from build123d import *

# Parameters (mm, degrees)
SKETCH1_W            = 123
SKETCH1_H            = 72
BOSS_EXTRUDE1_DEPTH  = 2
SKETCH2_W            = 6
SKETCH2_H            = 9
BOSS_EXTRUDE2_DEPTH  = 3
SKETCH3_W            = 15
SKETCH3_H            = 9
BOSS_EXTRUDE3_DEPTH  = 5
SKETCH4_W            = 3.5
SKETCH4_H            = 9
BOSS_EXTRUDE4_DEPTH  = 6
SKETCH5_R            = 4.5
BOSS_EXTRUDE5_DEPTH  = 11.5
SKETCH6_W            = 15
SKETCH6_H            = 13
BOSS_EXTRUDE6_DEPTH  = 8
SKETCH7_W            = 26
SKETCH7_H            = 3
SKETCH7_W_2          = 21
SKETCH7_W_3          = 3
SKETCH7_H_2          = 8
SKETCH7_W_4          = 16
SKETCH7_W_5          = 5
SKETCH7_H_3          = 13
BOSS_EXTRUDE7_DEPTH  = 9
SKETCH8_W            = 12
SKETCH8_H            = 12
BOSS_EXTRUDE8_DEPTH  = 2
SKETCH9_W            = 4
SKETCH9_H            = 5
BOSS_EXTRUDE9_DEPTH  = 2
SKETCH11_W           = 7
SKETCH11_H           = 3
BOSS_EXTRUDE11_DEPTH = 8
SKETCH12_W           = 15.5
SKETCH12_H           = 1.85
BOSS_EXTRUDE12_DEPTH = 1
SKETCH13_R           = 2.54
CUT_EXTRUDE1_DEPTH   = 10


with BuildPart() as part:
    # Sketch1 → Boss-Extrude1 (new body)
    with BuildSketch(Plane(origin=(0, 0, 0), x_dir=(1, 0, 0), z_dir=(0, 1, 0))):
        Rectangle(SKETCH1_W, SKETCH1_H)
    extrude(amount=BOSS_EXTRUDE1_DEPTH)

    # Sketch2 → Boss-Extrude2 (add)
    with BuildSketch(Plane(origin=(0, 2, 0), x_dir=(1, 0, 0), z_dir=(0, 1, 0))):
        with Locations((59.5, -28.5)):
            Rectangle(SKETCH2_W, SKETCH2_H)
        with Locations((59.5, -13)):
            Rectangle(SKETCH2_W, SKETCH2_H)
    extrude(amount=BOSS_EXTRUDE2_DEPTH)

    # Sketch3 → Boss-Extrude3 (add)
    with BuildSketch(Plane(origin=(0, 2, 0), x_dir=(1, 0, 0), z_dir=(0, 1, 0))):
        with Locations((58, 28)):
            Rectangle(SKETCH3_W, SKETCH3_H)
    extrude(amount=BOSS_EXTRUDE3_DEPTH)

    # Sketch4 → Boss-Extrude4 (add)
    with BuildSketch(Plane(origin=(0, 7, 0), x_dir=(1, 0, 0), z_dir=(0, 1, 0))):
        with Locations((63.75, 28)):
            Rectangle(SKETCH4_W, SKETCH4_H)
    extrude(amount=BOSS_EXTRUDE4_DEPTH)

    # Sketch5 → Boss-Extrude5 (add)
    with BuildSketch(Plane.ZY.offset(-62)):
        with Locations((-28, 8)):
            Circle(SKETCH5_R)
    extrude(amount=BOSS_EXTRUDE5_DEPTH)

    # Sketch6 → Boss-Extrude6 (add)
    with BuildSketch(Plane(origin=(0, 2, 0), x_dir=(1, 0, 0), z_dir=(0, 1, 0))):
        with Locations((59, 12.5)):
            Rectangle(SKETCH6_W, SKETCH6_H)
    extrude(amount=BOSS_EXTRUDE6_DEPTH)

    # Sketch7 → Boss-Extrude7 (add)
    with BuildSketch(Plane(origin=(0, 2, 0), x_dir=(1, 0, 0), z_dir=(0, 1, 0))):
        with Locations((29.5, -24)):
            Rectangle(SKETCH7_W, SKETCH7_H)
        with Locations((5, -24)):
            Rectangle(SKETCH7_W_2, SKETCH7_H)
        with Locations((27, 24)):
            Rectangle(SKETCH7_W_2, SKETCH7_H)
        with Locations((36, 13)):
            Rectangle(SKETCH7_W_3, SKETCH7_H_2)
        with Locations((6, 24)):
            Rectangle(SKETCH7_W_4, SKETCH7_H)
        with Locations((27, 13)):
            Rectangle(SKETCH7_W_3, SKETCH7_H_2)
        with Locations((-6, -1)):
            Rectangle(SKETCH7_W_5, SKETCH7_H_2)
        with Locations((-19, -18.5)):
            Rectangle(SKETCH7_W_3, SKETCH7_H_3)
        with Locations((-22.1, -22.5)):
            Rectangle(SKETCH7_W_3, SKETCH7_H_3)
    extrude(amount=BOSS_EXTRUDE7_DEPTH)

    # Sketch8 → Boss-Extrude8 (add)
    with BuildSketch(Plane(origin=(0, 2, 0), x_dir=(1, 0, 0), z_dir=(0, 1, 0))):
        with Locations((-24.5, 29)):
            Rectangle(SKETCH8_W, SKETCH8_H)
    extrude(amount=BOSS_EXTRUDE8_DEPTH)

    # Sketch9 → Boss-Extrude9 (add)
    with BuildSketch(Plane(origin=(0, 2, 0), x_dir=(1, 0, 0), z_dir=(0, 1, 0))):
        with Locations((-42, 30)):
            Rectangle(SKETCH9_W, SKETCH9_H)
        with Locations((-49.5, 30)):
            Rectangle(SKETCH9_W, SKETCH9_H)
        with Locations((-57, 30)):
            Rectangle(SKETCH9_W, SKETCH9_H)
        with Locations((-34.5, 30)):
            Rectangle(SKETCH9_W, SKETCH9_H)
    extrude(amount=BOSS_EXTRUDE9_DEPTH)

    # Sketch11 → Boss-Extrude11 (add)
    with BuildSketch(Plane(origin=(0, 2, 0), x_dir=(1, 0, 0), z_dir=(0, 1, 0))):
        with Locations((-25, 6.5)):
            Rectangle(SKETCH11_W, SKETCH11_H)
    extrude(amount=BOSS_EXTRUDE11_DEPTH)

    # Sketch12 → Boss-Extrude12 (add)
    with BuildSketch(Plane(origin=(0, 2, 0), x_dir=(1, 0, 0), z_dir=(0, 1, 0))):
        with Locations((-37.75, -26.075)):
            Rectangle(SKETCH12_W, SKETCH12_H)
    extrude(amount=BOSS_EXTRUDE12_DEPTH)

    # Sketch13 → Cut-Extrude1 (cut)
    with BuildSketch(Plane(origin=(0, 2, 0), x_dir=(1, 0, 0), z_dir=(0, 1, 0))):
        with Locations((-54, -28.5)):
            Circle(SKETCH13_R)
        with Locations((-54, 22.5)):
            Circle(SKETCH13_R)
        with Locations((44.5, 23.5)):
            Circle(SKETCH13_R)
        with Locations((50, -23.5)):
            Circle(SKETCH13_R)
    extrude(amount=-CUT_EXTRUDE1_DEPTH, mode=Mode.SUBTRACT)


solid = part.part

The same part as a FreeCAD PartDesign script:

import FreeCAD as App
import Part
import Sketcher

V = App.Vector


def add_polygon(sketch, points):
    """Adds a closed chain of lines whose ends are joined by coincident constraints."""
    first, n = sketch.GeometryCount, len(points)
    for a, b in zip(points, points[1:] + points[:1]):
        sketch.addGeometry(Part.LineSegment(App.Vector(*a, 0), App.Vector(*b, 0)), False)
    for i in range(n):
        sketch.addConstraint(Sketcher.Constraint("Coincident", first + i, 2, first + (i + 1) % n, 1))

doc = App.newDocument("Part")
body = doc.addObject("PartDesign::Body", "Body")

# Sketch on XZ plane
sketch1 = body.newObject("Sketcher::SketchObject", "Sketch")
sketch1.AttachmentSupport = (doc.getObject("XZ_Plane"), [""])
sketch1.MapMode = "FlatFace"
add_polygon(sketch1, [(-62, -36), (-62, 36), (62, 36), (62, -36)])  # lines 0-3
sketch1.addConstraint([
    Sketcher.Constraint("Vertical", 0),
    Sketcher.Constraint("Horizontal", 1),
    Sketcher.Constraint("Vertical", 2),
    Sketcher.Constraint("Horizontal", 3),
    Sketcher.Constraint("Symmetric", 0, 2, 2, 2, -1, 1),
    Sketcher.Constraint("DistanceX", 1, 1, 1, 2, 123.0),
    Sketcher.Constraint("DistanceY", 0, 1, 0, 2, 72.0),
])
pad1 = body.newObject("PartDesign::Pad", "Pad")
pad1.Profile = sketch1
pad1.Length = 2
pad1.Reversed = True

# Sketch on XZ plane
sketch2 = body.newObject("Sketcher::SketchObject", "Sketch001")
sketch2.AttachmentSupport = (doc.getObject("XZ_Plane"), [""])
sketch2.MapMode = "FlatFace"
sketch2.AttachmentOffset = App.Placement(V(0, 0, -2), App.Rotation())
add_polygon(sketch2, [(56, 24), (56, 33), (62, 33), (62, 24)])  # lines 0-3
add_polygon(sketch2, [(56, 8), (56, 18), (62, 18), (62, 8)])  # lines 4-7
sketch2.addConstraint([
    Sketcher.Constraint("Vertical", 0),
    Sketcher.Constraint("Horizontal", 1),
    Sketcher.Constraint("Vertical", 2),
    Sketcher.Constraint("Horizontal", 3),
    Sketcher.Constraint("Vertical", 4),
    Sketcher.Constraint("Horizontal", 5),
    Sketcher.Constraint("Vertical", 6),
    Sketcher.Constraint("Horizontal", 7),
    Sketcher.Constraint("Vertical", 3, 2, 4, 2),
    Sketcher.Constraint("Vertical", 2, 2, 5, 2),
    Sketcher.Constraint("Equal", 2, 4),
    Sketcher.Constraint("DistanceX", 1, 1, 1, 2, 6.0),
    Sketcher.Constraint("DistanceY", 0, 1, 0, 2, 9.0),
    Sketcher.Constraint("DistanceY", -1, 1, 0, 2, 33.0),
    Sketcher.Constraint("DistanceX", -1, 1, 0, 2, 56.5),
    Sketcher.Constraint("DistanceY", -1, 1, 4, 2, 17.5),
])
pad2 = body.newObject("PartDesign::Pad", "Pad001")
pad2.Profile = sketch2
pad2.Length = 3
pad2.Reversed = True

# Sketch on XZ plane
sketch3 = body.newObject("Sketcher::SketchObject", "Sketch002")
sketch3.AttachmentSupport = (doc.getObject("XZ_Plane"), [""])
sketch3.MapMode = "FlatFace"
sketch3.AttachmentOffset = App.Placement(V(0, 0, -2), App.Rotation())
add_polygon(sketch3, [(50, -32), (50, -24), (66, -24), (66, -32)])  # lines 0-3
sketch3.addConstraint([
    Sketcher.Constraint("Vertical", 0),
    Sketcher.Constraint("Horizontal", 1),
    Sketcher.Constraint("Vertical", 2),
    Sketcher.Constraint("Horizontal", 3),
    Sketcher.Constraint("DistanceX", 1, 1, 1, 2, 15.0),
    Sketcher.Constraint("DistanceY", 0, 1, 0, 2, 9.0),
    Sketcher.Constraint("DistanceX", -1, 1, 0, 2, 50.5),
    Sketcher.Constraint("DistanceY", 0, 2, -1, 1, 23.5),
])
pad3 = body.newObject("PartDesign::Pad", "Pad002")
pad3.Profile = sketch3
pad3.Length = 5
pad3.Reversed = True

# Sketch on XZ plane
sketch4 = body.newObject("Sketcher::SketchObject", "Sketch003")
sketch4.AttachmentSupport = (doc.getObject("XZ_Plane"), [""])
sketch4.MapMode = "FlatFace"
sketch4.AttachmentOffset = App.Placement(V(0, 0, -7), App.Rotation())
add_polygon(sketch4, [(62, -32.5), (62, -23.5), (65.5, -23.5), (65.5, -32.5)])  # lines 0-3
sketch4.addConstraint([
    Sketcher.Constraint("Vertical", 0),
    Sketcher.Constraint("Horizontal", 1),
    Sketcher.Constraint("Vertical", 2),
    Sketcher.Constraint("Horizontal", 3),
    Sketcher.Constraint("DistanceY", 0, 1, 0, 2, 9.0),
    Sketcher.Constraint("DistanceX", 1, 1, 1, 2, 3.5),
    Sketcher.Constraint("DistanceX", -1, 1, 0, 2, 62.0),
    Sketcher.Constraint("DistanceY", 0, 2, -1, 1, 23.5),
])
pad4 = body.newObject("PartDesign::Pad", "Pad003")
pad4.Profile = sketch4
pad4.Length = 6
pad4.Reversed = True

# Sketch on YZ plane
sketch5 = body.newObject("Sketcher::SketchObject", "Sketch004")
sketch5.AttachmentSupport = (doc.getObject("YZ_Plane"), [""])
sketch5.MapMode = "FlatFace"
sketch5.AttachmentOffset = App.Placement(V(0, 0, 62), App.Rotation())
sketch5.addGeometry(Part.Circle(V(8, -28, 0), V(0, 0, 1), 4.5), False)
sketch5.addConstraint([
    Sketcher.Constraint("Diameter", 0, 9.0),
    Sketcher.Constraint("DistanceX", -1, 1, 0, 3, 8.0),
    Sketcher.Constraint("DistanceY", 0, 3, -1, 1, 28.0),
])
pad5 = body.newObject("PartDesign::Pad", "Pad004")
pad5.Profile = sketch5
pad5.Length = 11.5
pad5.Reversed = True

# Sketch on XZ plane
sketch6 = body.newObject("Sketcher::SketchObject", "Sketch005")
sketch6.AttachmentSupport = (doc.getObject("XZ_Plane"), [""])
sketch6.MapMode = "FlatFace"
sketch6.AttachmentOffset = App.Placement(V(0, 0, -2), App.Rotation())
add_polygon(sketch6, [(52, -19), (52, -6), (66, -6), (66, -19)])  # lines 0-3
sketch6.addConstraint([
    Sketcher.Constraint("Vertical", 0),
    Sketcher.Constraint("Horizontal", 1),
    Sketcher.Constraint("Vertical", 2),
    Sketcher.Constraint("Horizontal", 3),
    Sketcher.Constraint("DistanceX", 1, 1, 1, 2, 15.0),
    Sketcher.Constraint("DistanceY", 0, 1, 0, 2, 13.0),
    Sketcher.Constraint("DistanceY", 0, 2, -1, 1, 6.0),
    Sketcher.Constraint("DistanceX", -1, 1, 0, 2, 51.5),
])
pad6 = body.newObject("PartDesign::Pad", "Pad005")
pad6.Profile = sketch6
pad6.Length = 8
pad6.Reversed = True

# Sketch on XZ plane
sketch7 = body.newObject("Sketcher::SketchObject", "Sketch006")
sketch7.AttachmentSupport = (doc.getObject("XZ_Plane"), [""])
sketch7.MapMode = "FlatFace"
sketch7.AttachmentOffset = App.Placement(V(0, 0, -2), App.Rotation())
add_polygon(sketch7, [(16.5, 22.5), (16.5, 25.5), (42.5, 25.5), (42.5, 22.5)])  # lines 0-3
add_polygon(sketch7, [(-5.5, 22.5), (-5.5, 25.5), (15.5, 25.5), (15.5, 22.5)])  # lines 4-7
add_polygon(sketch7, [(16.5, -25.5), (16.5, -22.5), (37.5, -22.5), (37.5, -25.5)])  # lines 8-11
add_polygon(sketch7, [(34.5, -17), (34.5, -9), (37.5, -9), (37.5, -17)])  # lines 12-15
add_polygon(sketch7, [(-2, -25.5), (-2, -22.5), (14, -22.5), (14, -25.5)])  # lines 16-19
add_polygon(sketch7, [(25.5, -17), (25.5, -9), (28.5, -9), (28.5, -17)])  # lines 20-23
add_polygon(sketch7, [(-8.5, -3), (-8.5, 5), (-3.5, 5), (-3.5, -3)])  # lines 24-27
add_polygon(sketch7, [(-20.5, 12), (-20.5, 25), (-17.5, 25), (-17.5, 12)])  # lines 28-31
add_polygon(sketch7, [(-23.6, 16), (-23.6, 29), (-20.6, 29), (-20.6, 16)])  # lines 32-35
sketch7.addConstraint([
    Sketcher.Constraint("Vertical", 0),
    Sketcher.Constraint("Horizontal", 1),
    Sketcher.Constraint("Vertical", 2),
    Sketcher.Constraint("Horizontal", 3),
    Sketcher.Constraint("Vertical", 4),
    Sketcher.Constraint("Horizontal", 5),
    Sketcher.Constraint("Vertical", 6),
    Sketcher.Constraint("Horizontal", 7),
    Sketcher.Constraint("Vertical", 8),
    Sketcher.Constraint("Horizontal", 9),
    Sketcher.Constraint("Vertical", 10),
    Sketcher.Constraint("Horizontal", 11),
    Sketcher.Constraint("Vertical", 12),
    Sketcher.Constraint("Horizontal", 13),
    Sketcher.Constraint("Vertical", 14),
    Sketcher.Constraint("Horizontal", 15),
    Sketcher.Constraint("Vertical", 16),
    Sketcher.Constraint("Horizontal", 17),
    Sketcher.Constraint("Vertical", 18),
    Sketcher.Constraint("Horizontal", 19),
    Sketcher.Constraint("Vertical", 20),
    Sketcher.Constraint("Horizontal", 21),
    Sketcher.Constraint("Vertical", 22),
    Sketcher.Constraint("Horizontal", 23),
    Sketcher.Constraint("Vertical", 24),
    Sketcher.Constraint("Horizontal", 25),
    Sketcher.Constraint("Vertical", 26),
    Sketcher.Constraint("Horizontal", 27),
    Sketcher.Constraint("Vertical", 28),
    Sketcher.Constraint("Horizontal", 29),
    Sketcher.Constraint("Vertical", 30),
    Sketcher.Constraint("Horizontal", 31),
    Sketcher.Constraint("Vertical", 32),
    Sketcher.Constraint("Horizontal", 33),
    Sketcher.Constraint("Vertical", 34),
    Sketcher.Constraint("Horizontal", 35),
    Sketcher.Constraint("Symmetric", 3, 2, 8, 2, -1),
    Sketcher.Constraint("Horizontal", 1, 2, 4, 2),
    Sketcher.Constraint("Horizontal", 3, 2, 6, 2),
    Sketcher.Constraint("Horizontal", 9, 2, 16, 2),
    Sketcher.Constraint("Horizontal", 11, 2, 18, 2),
    Sketcher.Constraint("Horizontal", 13, 2, 20, 2),
    Sketcher.Constraint("Horizontal", 15, 2, 22, 2),
    Sketcher.Constraint("Vertical", 10, 2, 13, 2),
    Sketcher.Constraint("Equal", 7, 9),
    Sketcher.Constraint("Equal", 15, 21),
    Sketcher.Constraint("Equal", 23, 29),
    Sketcher.Constraint("Equal", 31, 33),
    Sketcher.Constraint("Equal", 35, 0),
    Sketcher.Constraint("Equal", 6, 8),
    Sketcher.Constraint("Equal", 22, 24),
    Sketcher.Constraint("Equal", 30, 32),
    Sketcher.Constraint("DistanceX", 1, 1, 1, 2, 26.0),
    Sketcher.Constraint("DistanceX", 5, 1, 5, 2, 21.0),
    Sketcher.Constraint("DistanceX", 13, 1, 13, 2, 3.0),
    Sketcher.Constraint("DistanceX", 17, 1, 17, 2, 16.0),
    Sketcher.Constraint("DistanceX", 25, 1, 25, 2, 5.0),
    Sketcher.Constraint("DistanceY", 12, 1, 12, 2, 8.0),
    Sketcher.Constraint("DistanceY", 28, 1, 28, 2, 13.0),
    Sketcher.Constraint("DistanceY", 12, 2, -1, 1, 9.0),
    Sketcher.Constraint("DistanceX", 16, 2, -1, 1, 2.0),
    Sketcher.Constraint("DistanceY", -1, 1, 24, 2, 5.0),
    Sketcher.Constraint("DistanceY", -1, 1, 28, 2, 25.0),
    Sketcher.Constraint("DistanceY", -1, 1, 32, 2, 29.0),
    Sketcher.Constraint("DistanceX", 4, 2, 0, 2, 22.0),
    Sketcher.Constraint("DistanceY", 8, 2, 3, 2, 45.0),
    Sketcher.Constraint("DistanceX", 20, 2, 12, 2, 9.0),
    Sketcher.Constraint("DistanceX", 24, 2, 7, 2, 3.0),
    Sketcher.Constraint("DistanceX", 28, 2, 4, 2, 15.0),
    Sketcher.Constraint("DistanceX", -1, 1, 0, 2, 16.5),
    Sketcher.Constraint("DistanceX", 32, 2, -1, 1, 23.6),
])
pad7 = body.newObject("PartDesign::Pad", "Pad006")
pad7.Profile = sketch7
pad7.Length = 9
pad7.Reversed = True

# Sketch on XZ plane
sketch8 = body.newObject("Sketcher::SketchObject", "Sketch007")
sketch8.AttachmentSupport = (doc.getObject("XZ_Plane"), [""])
sketch8.MapMode = "FlatFace"
sketch8.AttachmentOffset = App.Placement(V(0, 0, -2), App.Rotation())
add_polygon(sketch8, [(-30, -35), (-30, -23), (-18, -23), (-18, -35)])  # lines 0-3
sketch8.addConstraint([
    Sketcher.Constraint("Vertical", 0),
    Sketcher.Constraint("Horizontal", 1),
    Sketcher.Constraint("Vertical", 2),
    Sketcher.Constraint("Horizontal", 3),
    Sketcher.Constraint("Equal", 3, 0),
    Sketcher.Constraint("DistanceX", 1, 1, 1, 2, 12.0),
    Sketcher.Constraint("DistanceY", 0, 2, -1, 1, 23.0),
    Sketcher.Constraint("DistanceX", 0, 2, -1, 1, 30.5),
])
pad8 = body.newObject("PartDesign::Pad", "Pad007")
pad8.Profile = sketch8
pad8.Length = 2
pad8.Reversed = True

# Sketch on XZ plane
sketch9 = body.newObject("Sketcher::SketchObject", "Sketch008")
sketch9.AttachmentSupport = (doc.getObject("XZ_Plane"), [""])
sketch9.MapMode = "FlatFace"
sketch9.AttachmentOffset = App.Placement(V(0, 0, -2), App.Rotation())
add_polygon(sketch9, [(-44, -32.5), (-44, -27.5), (-40, -27.5), (-40, -32.5)])  # lines 0-3
add_polygon(sketch9, [(-51.5, -32.5), (-51.5, -27.5), (-47.5, -27.5), (-47.5, -32.5)])  # lines 4-7
add_polygon(sketch9, [(-59, -32.5), (-59, -27.5), (-55, -27.5), (-55, -32.5)])  # lines 8-11
add_polygon(sketch9, [(-36.5, -32.5), (-36.5, -27.5), (-32.5, -27.5), (-32.5, -32.5)])  # lines 12-15
sketch9.addConstraint([
    Sketcher.Constraint("Vertical", 0),
    Sketcher.Constraint("Horizontal", 1),
    Sketcher.Constraint("Vertical", 2),
    Sketcher.Constraint("Horizontal", 3),
    Sketcher.Constraint("Vertical", 4),
    Sketcher.Constraint("Horizontal", 5),
    Sketcher.Constraint("Vertical", 6),
    Sketcher.Constraint("Horizontal", 7),
    Sketcher.Constraint("Vertical", 8),
    Sketcher.Constraint("Horizontal", 9),
    Sketcher.Constraint("Vertical", 10),
    Sketcher.Constraint("Horizontal", 11),
    Sketcher.Constraint("Vertical", 12),
    Sketcher.Constraint("Horizontal", 13),
    Sketcher.Constraint("Vertical", 14),
    Sketcher.Constraint("Horizontal", 15),
    Sketcher.Constraint("Horizontal", 1, 2, 4, 2),
    Sketcher.Constraint("Horizontal", 3, 2, 6, 2),
    Sketcher.Constraint("Horizontal", 5, 2, 8, 2),
    Sketcher.Constraint("Horizontal", 7, 2, 10, 2),
    Sketcher.Constraint("Horizontal", 9, 2, 12, 2),
    Sketcher.Constraint("Horizontal", 11, 2, 14, 2),
    Sketcher.Constraint("Equal", 3, 5),
    Sketcher.Constraint("Equal", 7, 9),
    Sketcher.Constraint("Equal", 11, 13),
    Sketcher.Constraint("DistanceX", 1, 1, 1, 2, 4.0),
    Sketcher.Constraint("DistanceY", 0, 1, 0, 2, 5.0),
    Sketcher.Constraint("DistanceX", 0, 2, -1, 1, 44.0),
    Sketcher.Constraint("DistanceX", 8, 2, -1, 1, 59.0),
    Sketcher.Constraint("DistanceX", 5, 2, 12, 2, 11.0),
    Sketcher.Constraint("DistanceY", 0, 2, -1, 1, 27.5),
    Sketcher.Constraint("DistanceX", 4, 2, -1, 1, 51.5),
])
pad9 = body.newObject("PartDesign::Pad", "Pad008")
pad9.Profile = sketch9
pad9.Length = 2
pad9.Reversed = True

# Sketch on XZ plane
sketch10 = body.newObject("Sketcher::SketchObject", "Sketch009")
sketch10.AttachmentSupport = (doc.getObject("XZ_Plane"), [""])
sketch10.MapMode = "FlatFace"
sketch10.AttachmentOffset = App.Placement(V(0, 0, -2), App.Rotation())
add_polygon(sketch10, [(-28.5, -8), (-28.5, -5), (-21.5, -5), (-21.5, -8)])  # lines 0-3
sketch10.addConstraint([
    Sketcher.Constraint("Vertical", 0),
    Sketcher.Constraint("Horizontal", 1),
    Sketcher.Constraint("Vertical", 2),
    Sketcher.Constraint("Horizontal", 3),
    Sketcher.Constraint("DistanceX", 1, 1, 1, 2, 7.0),
    Sketcher.Constraint("DistanceY", 0, 1, 0, 2, 3.0),
    Sketcher.Constraint("DistanceY", 0, 2, -1, 1, 5.0),
    Sketcher.Constraint("DistanceX", 0, 2, -1, 1, 28.5),
])
pad10 = body.newObject("PartDesign::Pad", "Pad009")
pad10.Profile = sketch10
pad10.Length = 8
pad10.Reversed = True

# Sketch on XZ plane
sketch11 = body.newObject("Sketcher::SketchObject", "Sketch010")
sketch11.AttachmentSupport = (doc.getObject("XZ_Plane"), [""])
sketch11.MapMode = "FlatFace"
sketch11.AttachmentOffset = App.Placement(V(0, 0, -2), App.Rotation())
add_polygon(sketch11, [(-45.5, 25.1), (-45.5, 27), (-30, 27), (-30, 25.1)])  # lines 0-3
sketch11.addConstraint([
    Sketcher.Constraint("Vertical", 0),
    Sketcher.Constraint("Horizontal", 1),
    Sketcher.Constraint("Vertical", 2),
    Sketcher.Constraint("Horizontal", 3),
    Sketcher.Constraint("DistanceX", 1, 1, 1, 2, 15.5),
    Sketcher.Constraint("DistanceY", -1, 1, 0, 2, 27.0),
    Sketcher.Constraint("DistanceX", 1, 2, -1, 1, 30.0),
    Sketcher.Constraint("DistanceY", 0, 1, 0, 2, 1.85),
])
pad11 = body.newObject("PartDesign::Pad", "Pad010")
pad11.Profile = sketch11
pad11.Length = 1
pad11.Reversed = True

# Sketch on XZ plane
sketch12 = body.newObject("Sketcher::SketchObject", "Sketch011")
sketch12.AttachmentSupport = (doc.getObject("XZ_Plane"), [""])
sketch12.MapMode = "FlatFace"
sketch12.AttachmentOffset = App.Placement(V(0, 0, -2), App.Rotation())
sketch12.addGeometry([
    Part.Circle(V(-54, 28.5, 0), V(0, 0, 1), 2.5),
    Part.Circle(V(-54, -22.5, 0), V(0, 0, 1), 2.5),
    Part.Circle(V(44.5, -23.5, 0), V(0, 0, 1), 2.5),
    Part.Circle(V(50, 23.5, 0), V(0, 0, 1), 2.5),
], False)
sketch12.addConstraint([
    Sketcher.Constraint("Equal", 0, 1),
    Sketcher.Constraint("Equal", 1, 2),
    Sketcher.Constraint("Equal", 2, 3),
    Sketcher.Constraint("Vertical", 0, 3, 1, 3),
    Sketcher.Constraint("Diameter", 0, 5.08),
    Sketcher.Constraint("DistanceX", 0, 3, -1, 1, 54.0),
    Sketcher.Constraint("DistanceX", -1, 1, 3, 3, 50.0),
    Sketcher.Constraint("DistanceY", 1, 3, 0, 3, 51.0),
    Sketcher.Constraint("DistanceY", 2, 3, 1, 3, 1.0),
    Sketcher.Constraint("DistanceY", 2, 3, 3, 3, 47.0),
    Sketcher.Constraint("DistanceY", -1, 1, 0, 3, 28.5),
    Sketcher.Constraint("DistanceX", -1, 1, 2, 3, 44.5),
])
pocket1 = body.newObject("PartDesign::Pocket", "Pocket")
pocket1.Profile = sketch12
pocket1.Length = 10
pocket1.Reversed = True

doc.recompute()
